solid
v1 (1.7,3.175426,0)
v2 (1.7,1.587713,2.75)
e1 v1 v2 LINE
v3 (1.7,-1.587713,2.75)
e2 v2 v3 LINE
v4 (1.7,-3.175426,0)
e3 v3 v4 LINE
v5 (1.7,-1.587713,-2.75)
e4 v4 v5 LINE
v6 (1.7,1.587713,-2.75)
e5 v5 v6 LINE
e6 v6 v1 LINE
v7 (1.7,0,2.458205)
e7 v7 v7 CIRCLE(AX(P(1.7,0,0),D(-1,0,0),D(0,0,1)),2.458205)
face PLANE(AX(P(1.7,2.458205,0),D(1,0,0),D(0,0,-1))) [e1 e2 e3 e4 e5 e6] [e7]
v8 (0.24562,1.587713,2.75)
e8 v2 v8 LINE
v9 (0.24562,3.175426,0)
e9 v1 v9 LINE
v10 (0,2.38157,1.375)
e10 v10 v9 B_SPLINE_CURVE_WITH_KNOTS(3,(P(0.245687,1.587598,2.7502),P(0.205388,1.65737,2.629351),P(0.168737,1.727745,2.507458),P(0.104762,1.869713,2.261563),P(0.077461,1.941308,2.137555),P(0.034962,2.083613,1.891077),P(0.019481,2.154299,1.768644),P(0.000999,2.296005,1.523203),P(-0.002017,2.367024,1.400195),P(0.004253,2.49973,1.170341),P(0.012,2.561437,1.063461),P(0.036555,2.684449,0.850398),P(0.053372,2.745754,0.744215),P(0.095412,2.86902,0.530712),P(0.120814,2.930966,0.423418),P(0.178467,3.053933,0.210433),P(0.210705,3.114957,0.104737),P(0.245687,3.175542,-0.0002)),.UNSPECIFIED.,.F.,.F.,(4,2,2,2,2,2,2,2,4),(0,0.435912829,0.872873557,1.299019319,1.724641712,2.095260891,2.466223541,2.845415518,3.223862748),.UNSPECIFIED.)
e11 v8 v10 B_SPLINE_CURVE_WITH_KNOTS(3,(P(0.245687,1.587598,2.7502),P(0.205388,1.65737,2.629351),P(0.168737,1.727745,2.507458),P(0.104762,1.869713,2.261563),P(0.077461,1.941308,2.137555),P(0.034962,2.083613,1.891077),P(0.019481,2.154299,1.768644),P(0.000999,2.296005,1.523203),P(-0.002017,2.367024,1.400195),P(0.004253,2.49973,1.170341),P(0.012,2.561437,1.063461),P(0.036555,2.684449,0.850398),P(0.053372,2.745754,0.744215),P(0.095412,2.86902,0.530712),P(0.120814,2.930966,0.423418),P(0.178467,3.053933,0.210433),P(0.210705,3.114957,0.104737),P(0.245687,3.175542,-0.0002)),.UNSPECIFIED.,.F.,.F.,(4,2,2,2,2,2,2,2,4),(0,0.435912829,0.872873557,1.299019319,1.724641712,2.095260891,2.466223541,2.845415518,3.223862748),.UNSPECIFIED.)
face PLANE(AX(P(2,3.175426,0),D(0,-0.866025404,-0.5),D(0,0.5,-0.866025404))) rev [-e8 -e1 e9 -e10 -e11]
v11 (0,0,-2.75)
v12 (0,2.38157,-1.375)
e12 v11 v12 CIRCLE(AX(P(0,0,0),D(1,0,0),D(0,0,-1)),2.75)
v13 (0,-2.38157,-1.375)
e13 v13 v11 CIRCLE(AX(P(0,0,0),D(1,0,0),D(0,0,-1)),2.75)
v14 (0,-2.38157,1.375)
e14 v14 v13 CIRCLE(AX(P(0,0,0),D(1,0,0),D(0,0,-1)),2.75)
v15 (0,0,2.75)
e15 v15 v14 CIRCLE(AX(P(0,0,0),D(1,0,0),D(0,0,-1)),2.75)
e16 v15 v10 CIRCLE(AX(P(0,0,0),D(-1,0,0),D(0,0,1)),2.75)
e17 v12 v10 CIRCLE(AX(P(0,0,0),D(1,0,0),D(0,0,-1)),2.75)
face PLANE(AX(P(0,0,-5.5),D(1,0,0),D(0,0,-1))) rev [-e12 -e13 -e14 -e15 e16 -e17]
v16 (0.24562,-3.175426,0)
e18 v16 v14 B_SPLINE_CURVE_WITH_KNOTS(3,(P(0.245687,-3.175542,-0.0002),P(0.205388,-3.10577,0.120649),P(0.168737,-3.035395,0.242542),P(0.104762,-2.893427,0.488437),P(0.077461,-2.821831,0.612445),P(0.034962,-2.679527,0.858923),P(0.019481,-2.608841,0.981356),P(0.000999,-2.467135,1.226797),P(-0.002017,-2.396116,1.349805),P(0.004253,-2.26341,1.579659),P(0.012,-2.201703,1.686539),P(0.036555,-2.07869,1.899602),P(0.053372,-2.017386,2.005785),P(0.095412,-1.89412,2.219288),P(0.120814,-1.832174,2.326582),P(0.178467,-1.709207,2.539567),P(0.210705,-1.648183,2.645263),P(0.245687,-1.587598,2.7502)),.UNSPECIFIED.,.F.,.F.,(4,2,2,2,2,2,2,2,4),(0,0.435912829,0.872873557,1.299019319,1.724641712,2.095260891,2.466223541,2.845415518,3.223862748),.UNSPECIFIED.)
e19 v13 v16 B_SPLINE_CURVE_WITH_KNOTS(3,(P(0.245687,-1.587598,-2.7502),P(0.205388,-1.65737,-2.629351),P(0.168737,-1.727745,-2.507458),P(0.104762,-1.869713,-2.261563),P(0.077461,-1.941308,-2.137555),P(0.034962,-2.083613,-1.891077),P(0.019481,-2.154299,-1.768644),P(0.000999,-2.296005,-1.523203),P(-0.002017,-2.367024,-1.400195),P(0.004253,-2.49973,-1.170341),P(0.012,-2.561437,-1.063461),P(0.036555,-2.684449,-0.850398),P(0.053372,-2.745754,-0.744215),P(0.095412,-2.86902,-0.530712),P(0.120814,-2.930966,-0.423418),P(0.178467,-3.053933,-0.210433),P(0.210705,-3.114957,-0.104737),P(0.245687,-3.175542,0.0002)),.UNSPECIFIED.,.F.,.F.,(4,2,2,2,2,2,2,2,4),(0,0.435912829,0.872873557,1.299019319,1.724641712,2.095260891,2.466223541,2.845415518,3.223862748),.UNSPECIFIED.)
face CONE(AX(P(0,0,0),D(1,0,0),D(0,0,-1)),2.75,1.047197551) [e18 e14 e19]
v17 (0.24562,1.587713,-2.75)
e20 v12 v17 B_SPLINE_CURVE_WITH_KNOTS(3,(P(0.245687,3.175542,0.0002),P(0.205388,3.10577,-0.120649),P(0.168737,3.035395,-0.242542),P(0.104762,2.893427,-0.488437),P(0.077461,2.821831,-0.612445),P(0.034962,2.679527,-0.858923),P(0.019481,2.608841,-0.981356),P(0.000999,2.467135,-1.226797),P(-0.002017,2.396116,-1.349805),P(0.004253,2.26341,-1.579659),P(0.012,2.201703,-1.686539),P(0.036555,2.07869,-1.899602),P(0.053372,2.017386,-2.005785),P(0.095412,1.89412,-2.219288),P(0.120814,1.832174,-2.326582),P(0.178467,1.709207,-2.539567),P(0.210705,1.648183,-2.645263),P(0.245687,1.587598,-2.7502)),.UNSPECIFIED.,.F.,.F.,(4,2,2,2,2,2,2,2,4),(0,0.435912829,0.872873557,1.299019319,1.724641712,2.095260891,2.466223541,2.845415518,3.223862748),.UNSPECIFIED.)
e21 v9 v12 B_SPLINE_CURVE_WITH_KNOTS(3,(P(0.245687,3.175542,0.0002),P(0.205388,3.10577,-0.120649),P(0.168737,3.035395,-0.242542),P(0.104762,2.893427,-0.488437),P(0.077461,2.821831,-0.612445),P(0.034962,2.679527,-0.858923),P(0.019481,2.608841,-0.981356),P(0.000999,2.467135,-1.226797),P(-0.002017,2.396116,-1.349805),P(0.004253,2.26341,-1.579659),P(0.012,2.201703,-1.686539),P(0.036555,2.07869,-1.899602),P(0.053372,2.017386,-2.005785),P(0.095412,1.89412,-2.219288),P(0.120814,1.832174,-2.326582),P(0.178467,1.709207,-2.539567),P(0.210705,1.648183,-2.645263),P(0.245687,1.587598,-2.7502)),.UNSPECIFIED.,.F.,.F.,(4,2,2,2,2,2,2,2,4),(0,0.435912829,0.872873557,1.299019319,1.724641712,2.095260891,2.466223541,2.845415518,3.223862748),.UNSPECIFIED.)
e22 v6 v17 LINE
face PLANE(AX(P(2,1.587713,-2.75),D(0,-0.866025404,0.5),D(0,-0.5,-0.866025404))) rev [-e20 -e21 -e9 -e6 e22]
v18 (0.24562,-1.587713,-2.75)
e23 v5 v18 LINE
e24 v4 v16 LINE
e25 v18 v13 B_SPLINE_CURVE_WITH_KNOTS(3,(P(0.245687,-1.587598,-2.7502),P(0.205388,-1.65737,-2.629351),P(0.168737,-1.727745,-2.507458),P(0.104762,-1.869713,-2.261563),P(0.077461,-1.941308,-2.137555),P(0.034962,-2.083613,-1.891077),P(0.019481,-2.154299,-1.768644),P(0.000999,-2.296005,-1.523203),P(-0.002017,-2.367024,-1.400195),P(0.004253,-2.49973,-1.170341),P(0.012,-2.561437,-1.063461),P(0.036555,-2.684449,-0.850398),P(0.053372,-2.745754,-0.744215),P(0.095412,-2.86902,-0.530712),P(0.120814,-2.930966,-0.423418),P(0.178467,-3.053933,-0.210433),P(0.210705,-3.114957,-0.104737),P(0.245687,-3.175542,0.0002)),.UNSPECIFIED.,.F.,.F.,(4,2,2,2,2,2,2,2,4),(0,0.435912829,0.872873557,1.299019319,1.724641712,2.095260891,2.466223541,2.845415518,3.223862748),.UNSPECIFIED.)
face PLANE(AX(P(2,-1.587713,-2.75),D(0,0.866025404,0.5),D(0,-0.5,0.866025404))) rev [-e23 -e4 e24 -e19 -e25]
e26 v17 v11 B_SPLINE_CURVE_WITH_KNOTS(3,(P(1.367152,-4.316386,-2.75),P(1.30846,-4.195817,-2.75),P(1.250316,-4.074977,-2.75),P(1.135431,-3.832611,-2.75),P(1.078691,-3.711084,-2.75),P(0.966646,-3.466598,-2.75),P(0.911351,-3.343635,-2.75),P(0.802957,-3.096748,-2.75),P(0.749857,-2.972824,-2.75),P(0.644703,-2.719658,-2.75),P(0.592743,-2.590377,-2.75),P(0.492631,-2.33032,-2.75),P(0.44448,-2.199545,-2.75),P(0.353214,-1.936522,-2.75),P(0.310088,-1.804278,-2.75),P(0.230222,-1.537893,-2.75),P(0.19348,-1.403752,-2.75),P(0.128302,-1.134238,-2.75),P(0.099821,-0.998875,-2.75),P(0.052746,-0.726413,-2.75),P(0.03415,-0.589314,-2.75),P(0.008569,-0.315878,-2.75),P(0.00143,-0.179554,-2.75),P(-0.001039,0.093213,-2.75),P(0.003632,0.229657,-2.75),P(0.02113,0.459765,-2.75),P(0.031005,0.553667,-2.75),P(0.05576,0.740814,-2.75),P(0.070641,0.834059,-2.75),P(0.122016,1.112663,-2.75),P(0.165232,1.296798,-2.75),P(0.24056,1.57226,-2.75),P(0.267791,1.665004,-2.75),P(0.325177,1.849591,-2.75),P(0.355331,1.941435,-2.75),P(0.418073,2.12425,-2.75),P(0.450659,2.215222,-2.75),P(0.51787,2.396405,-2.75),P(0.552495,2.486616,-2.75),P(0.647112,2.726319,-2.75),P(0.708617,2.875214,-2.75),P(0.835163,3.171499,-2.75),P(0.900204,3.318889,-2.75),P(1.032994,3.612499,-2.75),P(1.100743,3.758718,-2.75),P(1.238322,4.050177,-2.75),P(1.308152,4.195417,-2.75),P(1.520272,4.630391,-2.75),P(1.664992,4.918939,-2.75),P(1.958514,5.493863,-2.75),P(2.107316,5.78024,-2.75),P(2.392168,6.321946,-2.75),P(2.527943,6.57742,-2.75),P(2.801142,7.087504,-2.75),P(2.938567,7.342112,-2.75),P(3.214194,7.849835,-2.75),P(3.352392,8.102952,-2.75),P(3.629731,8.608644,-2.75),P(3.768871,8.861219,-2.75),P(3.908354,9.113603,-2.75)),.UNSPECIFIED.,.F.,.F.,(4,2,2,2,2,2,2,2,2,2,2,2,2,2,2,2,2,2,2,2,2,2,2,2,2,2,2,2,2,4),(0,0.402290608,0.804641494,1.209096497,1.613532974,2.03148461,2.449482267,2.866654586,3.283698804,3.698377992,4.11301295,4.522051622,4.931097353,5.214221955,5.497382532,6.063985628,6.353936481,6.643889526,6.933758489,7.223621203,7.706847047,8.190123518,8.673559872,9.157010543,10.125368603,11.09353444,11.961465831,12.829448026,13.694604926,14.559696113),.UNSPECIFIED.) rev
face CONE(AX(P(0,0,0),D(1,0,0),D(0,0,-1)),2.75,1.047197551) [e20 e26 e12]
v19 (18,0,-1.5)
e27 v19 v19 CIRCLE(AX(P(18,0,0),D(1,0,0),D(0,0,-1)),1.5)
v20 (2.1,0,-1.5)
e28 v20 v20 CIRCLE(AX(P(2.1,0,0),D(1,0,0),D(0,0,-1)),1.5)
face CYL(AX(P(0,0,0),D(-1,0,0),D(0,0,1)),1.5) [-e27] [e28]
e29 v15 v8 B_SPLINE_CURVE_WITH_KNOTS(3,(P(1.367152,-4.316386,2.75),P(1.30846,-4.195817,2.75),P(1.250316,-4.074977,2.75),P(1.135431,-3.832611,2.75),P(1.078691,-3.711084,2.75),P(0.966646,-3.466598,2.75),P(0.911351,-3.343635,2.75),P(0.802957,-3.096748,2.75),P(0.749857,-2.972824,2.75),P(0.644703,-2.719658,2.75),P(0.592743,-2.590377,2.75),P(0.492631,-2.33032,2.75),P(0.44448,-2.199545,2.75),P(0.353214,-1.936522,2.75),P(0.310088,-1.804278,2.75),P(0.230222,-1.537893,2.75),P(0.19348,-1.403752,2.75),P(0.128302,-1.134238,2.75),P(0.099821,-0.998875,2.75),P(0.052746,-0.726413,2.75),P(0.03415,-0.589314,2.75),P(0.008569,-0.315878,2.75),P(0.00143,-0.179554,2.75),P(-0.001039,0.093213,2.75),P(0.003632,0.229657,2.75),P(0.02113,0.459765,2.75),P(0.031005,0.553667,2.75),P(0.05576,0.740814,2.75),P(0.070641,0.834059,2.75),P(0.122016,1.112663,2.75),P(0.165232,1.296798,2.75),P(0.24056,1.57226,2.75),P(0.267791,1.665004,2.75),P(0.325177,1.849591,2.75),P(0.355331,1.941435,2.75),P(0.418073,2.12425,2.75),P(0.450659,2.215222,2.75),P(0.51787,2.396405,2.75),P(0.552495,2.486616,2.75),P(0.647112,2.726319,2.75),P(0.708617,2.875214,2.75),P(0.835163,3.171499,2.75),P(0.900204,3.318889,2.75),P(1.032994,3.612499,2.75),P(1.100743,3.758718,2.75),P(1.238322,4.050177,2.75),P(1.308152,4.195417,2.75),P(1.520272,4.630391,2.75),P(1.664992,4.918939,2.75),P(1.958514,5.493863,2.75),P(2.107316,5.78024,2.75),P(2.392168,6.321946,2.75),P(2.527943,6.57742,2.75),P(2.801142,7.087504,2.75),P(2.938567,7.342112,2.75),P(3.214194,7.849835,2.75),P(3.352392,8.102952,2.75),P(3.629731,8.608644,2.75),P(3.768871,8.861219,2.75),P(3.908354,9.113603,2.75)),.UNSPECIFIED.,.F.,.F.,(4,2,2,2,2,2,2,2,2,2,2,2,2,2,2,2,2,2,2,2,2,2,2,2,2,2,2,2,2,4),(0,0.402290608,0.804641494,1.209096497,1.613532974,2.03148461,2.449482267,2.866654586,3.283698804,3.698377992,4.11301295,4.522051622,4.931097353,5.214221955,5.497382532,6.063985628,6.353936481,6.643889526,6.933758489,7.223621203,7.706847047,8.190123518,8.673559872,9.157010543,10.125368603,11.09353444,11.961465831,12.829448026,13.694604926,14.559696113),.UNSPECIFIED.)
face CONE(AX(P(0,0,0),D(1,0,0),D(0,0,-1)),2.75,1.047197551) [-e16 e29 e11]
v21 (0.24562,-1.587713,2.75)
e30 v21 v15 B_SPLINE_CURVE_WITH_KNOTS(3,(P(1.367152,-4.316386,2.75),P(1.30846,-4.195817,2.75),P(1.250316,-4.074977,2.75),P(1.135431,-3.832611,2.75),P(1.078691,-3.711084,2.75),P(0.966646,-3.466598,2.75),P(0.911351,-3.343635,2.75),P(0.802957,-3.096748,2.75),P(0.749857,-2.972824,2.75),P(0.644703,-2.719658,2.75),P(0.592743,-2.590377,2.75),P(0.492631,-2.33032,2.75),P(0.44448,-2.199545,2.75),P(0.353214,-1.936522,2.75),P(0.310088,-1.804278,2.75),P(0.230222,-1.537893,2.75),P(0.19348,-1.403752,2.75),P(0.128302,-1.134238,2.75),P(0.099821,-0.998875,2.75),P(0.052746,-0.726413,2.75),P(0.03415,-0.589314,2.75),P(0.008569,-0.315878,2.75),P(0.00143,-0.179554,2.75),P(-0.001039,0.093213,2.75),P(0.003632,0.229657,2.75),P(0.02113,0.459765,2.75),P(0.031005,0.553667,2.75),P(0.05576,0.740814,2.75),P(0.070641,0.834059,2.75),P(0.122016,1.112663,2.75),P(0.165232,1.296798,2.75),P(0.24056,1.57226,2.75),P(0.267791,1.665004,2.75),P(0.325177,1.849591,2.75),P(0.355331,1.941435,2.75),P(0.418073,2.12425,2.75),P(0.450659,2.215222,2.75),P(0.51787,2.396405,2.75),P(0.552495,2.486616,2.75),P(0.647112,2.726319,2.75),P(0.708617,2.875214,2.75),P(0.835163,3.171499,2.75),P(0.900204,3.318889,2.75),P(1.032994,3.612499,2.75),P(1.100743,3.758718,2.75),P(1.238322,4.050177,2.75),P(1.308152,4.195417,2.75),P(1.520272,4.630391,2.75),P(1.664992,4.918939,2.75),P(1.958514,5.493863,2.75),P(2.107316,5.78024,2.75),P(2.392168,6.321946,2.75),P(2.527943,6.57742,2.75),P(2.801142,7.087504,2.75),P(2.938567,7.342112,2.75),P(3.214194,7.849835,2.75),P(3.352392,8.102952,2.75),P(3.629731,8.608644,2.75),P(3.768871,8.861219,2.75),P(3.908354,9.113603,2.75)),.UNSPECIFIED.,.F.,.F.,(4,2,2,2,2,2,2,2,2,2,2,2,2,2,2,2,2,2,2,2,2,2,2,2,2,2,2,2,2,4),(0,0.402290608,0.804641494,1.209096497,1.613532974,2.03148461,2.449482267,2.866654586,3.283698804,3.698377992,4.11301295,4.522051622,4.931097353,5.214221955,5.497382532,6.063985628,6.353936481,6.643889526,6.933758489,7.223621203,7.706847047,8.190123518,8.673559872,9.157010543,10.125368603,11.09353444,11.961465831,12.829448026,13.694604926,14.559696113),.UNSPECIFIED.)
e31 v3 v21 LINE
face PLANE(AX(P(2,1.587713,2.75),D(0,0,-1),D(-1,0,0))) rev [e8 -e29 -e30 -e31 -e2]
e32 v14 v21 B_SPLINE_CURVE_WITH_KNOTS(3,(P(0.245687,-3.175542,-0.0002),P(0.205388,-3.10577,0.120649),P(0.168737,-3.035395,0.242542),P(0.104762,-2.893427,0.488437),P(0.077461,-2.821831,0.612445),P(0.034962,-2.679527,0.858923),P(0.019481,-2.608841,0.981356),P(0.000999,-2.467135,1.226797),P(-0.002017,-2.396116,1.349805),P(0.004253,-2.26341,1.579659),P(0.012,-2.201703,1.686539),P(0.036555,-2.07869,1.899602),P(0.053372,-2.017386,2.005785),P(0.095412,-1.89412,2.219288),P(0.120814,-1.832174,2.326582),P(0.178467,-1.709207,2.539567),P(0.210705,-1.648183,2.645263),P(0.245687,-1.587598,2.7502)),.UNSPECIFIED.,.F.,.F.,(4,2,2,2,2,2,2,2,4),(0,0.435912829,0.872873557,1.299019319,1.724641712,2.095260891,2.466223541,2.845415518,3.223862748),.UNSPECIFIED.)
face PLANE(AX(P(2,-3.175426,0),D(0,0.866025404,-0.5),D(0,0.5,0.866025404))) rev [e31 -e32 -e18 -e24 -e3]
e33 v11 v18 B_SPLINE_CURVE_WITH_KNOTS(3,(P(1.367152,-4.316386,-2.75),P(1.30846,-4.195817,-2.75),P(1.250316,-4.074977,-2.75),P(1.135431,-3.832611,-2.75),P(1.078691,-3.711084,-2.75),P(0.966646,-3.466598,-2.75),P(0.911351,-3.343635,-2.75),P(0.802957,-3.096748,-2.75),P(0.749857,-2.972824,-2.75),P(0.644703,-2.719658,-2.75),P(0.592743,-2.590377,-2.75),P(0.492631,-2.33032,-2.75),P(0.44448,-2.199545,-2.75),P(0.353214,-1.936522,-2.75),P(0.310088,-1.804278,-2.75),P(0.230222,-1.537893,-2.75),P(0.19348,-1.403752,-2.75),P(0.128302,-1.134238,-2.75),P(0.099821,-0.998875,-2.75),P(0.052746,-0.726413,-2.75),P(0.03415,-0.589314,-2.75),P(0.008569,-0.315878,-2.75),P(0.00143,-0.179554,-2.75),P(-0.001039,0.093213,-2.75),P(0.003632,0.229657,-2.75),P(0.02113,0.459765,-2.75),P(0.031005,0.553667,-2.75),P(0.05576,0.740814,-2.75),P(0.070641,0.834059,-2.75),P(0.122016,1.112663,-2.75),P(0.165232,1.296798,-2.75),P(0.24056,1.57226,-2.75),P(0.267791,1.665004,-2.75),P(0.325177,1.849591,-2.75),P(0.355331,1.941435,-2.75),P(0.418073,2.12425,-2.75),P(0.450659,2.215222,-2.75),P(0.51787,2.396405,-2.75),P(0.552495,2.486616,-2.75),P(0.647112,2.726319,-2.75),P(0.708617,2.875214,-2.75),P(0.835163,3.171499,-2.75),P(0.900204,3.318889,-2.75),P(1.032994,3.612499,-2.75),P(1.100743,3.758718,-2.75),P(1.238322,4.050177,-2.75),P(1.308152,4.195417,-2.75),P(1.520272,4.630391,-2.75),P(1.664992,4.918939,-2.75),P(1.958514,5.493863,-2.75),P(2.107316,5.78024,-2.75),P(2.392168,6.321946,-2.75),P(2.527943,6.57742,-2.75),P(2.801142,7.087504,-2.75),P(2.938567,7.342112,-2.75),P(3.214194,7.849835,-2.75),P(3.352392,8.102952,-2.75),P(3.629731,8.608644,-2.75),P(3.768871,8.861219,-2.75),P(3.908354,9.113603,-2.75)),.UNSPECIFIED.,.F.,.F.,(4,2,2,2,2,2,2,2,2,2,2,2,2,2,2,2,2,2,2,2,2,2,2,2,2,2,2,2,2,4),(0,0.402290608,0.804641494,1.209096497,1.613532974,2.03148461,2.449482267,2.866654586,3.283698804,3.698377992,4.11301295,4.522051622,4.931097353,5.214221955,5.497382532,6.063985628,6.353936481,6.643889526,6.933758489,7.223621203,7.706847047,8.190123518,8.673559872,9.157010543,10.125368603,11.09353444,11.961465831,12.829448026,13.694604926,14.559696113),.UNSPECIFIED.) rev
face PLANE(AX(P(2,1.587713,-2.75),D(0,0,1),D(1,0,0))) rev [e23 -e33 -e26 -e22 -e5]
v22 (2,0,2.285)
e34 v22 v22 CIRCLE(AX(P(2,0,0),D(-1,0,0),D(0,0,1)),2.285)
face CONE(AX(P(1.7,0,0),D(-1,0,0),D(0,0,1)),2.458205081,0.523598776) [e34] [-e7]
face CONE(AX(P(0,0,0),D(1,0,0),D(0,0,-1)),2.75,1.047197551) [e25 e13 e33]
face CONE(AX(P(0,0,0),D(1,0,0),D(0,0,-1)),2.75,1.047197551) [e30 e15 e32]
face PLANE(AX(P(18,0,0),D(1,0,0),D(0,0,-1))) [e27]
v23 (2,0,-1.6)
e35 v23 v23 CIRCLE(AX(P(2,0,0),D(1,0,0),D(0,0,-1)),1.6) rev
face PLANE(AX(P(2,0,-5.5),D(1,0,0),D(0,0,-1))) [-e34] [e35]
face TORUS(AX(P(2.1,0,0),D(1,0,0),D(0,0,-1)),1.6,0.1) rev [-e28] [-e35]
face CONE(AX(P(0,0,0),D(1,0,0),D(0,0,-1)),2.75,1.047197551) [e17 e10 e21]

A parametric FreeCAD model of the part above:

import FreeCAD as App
import Part
import Sketcher

V = App.Vector
Q = App.Units.Quantity


def edges_at(feature, points):
    """Names of the edges that pass closest to the given points."""
    edges = feature.Shape.Edges
    near = lambda p: min(range(len(edges)), key=lambda i: edges[i].distToShape(Part.Vertex(*p))[0])
    return sorted({f"Edge{near(p) + 1}" for p in points})


def add_polygon(sketch, points):
    """Adds a closed chain of lines whose ends are joined by coincident constraints."""
    first, n = sketch.GeometryCount, len(points)
    for a, b in zip(points, points[1:] + points[:1]):
        sketch.addGeometry(Part.LineSegment(App.Vector(*a, 0), App.Vector(*b, 0)), False)
    for i in range(n):
        sketch.addConstraint(Sketcher.Constraint("Coincident", first + i, 2, first + (i + 1) % n, 1))

doc = App.newDocument("Part")
body = doc.addObject("PartDesign::Body", "Body")

# Sketch on YZ plane
sketch1 = doc.addObject("Sketcher::SketchObject", "Sketch")
body.addObject(sketch1)
sketch1.AttachmentSupport = (doc.YZ_Plane, [""])
sketch1.MapMode = "FlatFace"
add_polygon(sketch1, [(-1.6, -2.8), (1.6, -2.8), (3.2, 0), (1.6, 2.8), (-1.6, 2.8), (-3.2, 0)])  # lines 0-5
sketch1.addConstraint([
    Sketcher.Constraint("Horizontal", 0),
    Sketcher.Constraint("Horizontal", 3),
    Sketcher.Constraint("Symmetric", 0, 2, 3, 2, -1, 1),
    Sketcher.Constraint("Symmetric", 1, 2, 4, 2, -1, 1),
    Sketcher.Constraint("PointOnObject", 1, 2, -1),
    Sketcher.Constraint("Parallel", 2, 5),
    Sketcher.Constraint("Vertical", 0, 2, 2, 2),
    Sketcher.Constraint("Angle", 1, Q("60 deg")),
    Sketcher.Constraint("DistanceY", 0, 2, 2, 2, 5.5),
    Sketcher.Constraint("DistanceX", 0, 1, 0, 2, 3.175426),
])
pad1 = doc.addObject("PartDesign::Pad", "Pad")
body.addObject(pad1)
pad1.Profile = sketch1
pad1.Length = 2

# Sketch on XY plane
sketch2 = doc.addObject("Sketcher::SketchObject", "Sketch001")
body.addObject(sketch2)
sketch2.AttachmentSupport = (doc.XY_Plane, [""])
sketch2.MapMode = "FlatFace"
add_polygon(sketch2, [(0, 0), (27, 0), (27, 1.5), (0, 1.5)])  # lines 0-3
sketch2.addConstraint([
    Sketcher.Constraint("Horizontal", 0),
    Sketcher.Constraint("Vertical", 1),
    Sketcher.Constraint("Horizontal", 2),
    Sketcher.Constraint("Vertical", 3),
    Sketcher.Constraint("Coincident", 3, 2, -1, 1),
    Sketcher.Constraint("DistanceX", 0, 1, 0, 2, 27.0),
    Sketcher.Constraint("DistanceY", 1, 1, 1, 2, 1.5),
])
revolution = doc.addObject("PartDesign::Revolution", "Revolution")
body.addObject(revolution)
revolution.Profile = sketch2
revolution.ReferenceAxis = (sketch2, ["H_Axis"])
revolution.Angle = 360

# Sketch on XY plane
sketch3 = doc.addObject("Sketcher::SketchObject", "Sketch002")
body.addObject(sketch3)
sketch3.AttachmentSupport = (doc.XY_Plane, [""])
sketch3.MapMode = "FlatFace"
add_polygon(sketch3, [(0, 3), (3, 8), (3, 13), (-10, 13), (-10, 3)])  # lines 0-4
sketch3.addConstraint([
    Sketcher.Constraint("Vertical", 1),
    Sketcher.Constraint("Horizontal", 2),
    Sketcher.Constraint("Vertical", 3),
    Sketcher.Constraint("Horizontal", 4),
    Sketcher.Constraint("PointOnObject", 4, 2, -2),
    Sketcher.Constraint("DistanceX", 4, 1, 4, 2, 10.0),
    Sketcher.Constraint("DistanceY", 1, 1, 1, 2, 5.0),
    Sketcher.Constraint("Angle", 0, Q("60 deg")),
    Sketcher.Constraint("DistanceY", -1, 1, 3, 2, 2.75),
    Sketcher.Constraint("DistanceX", 2, 2, 2, 1, 13.132371),
])
groove = doc.addObject("PartDesign::Groove", "Groove")
body.addObject(groove)
groove.Profile = sketch3
groove.ReferenceAxis = (sketch3, ["H_Axis"])
groove.Angle = 360

# Sketch on XY plane
sketch4 = doc.addObject("Sketcher::SketchObject", "Sketch003")
body.addObject(sketch4)
sketch4.AttachmentSupport = (doc.XY_Plane, [""])
sketch4.MapMode = "FlatFace"
add_polygon(sketch4, [(1.7, 2.46), (2, 2.29), (2, 3.18), (1.7, 3.18)])  # lines 0-3
sketch4.addConstraint([
    Sketcher.Constraint("Vertical", 1),
    Sketcher.Constraint("Horizontal", 2),
    Sketcher.Constraint("Vertical", 3),
    Sketcher.Constraint("Angle", 0, Q("-30 deg")),
    Sketcher.Constraint("DistanceX", 2, 2, 2, 1, 0.3),
    Sketcher.Constraint("DistanceX", -1, 1, 0, 2, 2.0),
    Sketcher.Constraint("DistanceY", -1, 1, 0, 2, 2.285),
    Sketcher.Constraint("DistanceY", 3, 2, 3, 1, 0.717221),
])
groove2 = doc.addObject("PartDesign::Groove", "Groove001")
body.addObject(groove2)
groove2.Profile = sketch4
groove2.ReferenceAxis = (sketch4, ["H_Axis"])
groove2.Angle = 360
doc.recompute()

fillet = doc.addObject("PartDesign::Fillet", "Fillet")
body.addObject(fillet)
fillet.Base = (groove2, edges_at(groove2, [(2, 0, -1.5)]))
fillet.Radius = 0.1

# Sketch on XY plane
sketch5 = doc.addObject("Sketcher::SketchObject", "Sketch004")
body.addObject(sketch5)
sketch5.AttachmentSupport = (doc.XY_Plane, [""])
sketch5.MapMode = "FlatFace"
add_polygon(sketch5, [(27.2, 1.5), (26.8, 1.5), (27, 1.1)])  # lines 0-2
sketch5.addConstraint([
    Sketcher.Constraint("Horizontal", 0),
    Sketcher.Constraint("Equal", 1, 2),
    Sketcher.Constraint("Angle", 1, Q("-60 deg")),
    Sketcher.Constraint("DistanceX", 0, 2, 0, 1, 0.5),
    Sketcher.Constraint("DistanceX", -1, 1, 1, 2, 27.0),
    Sketcher.Constraint("DistanceY", -1, 1, 0, 2, 1.5),
])
groove3 = doc.addObject("PartDesign::Groove", "Groove002")
body.addObject(groove3)
groove3.Profile = sketch5
groove3.ReferenceAxis = (sketch5, ["H_Axis"])
groove3.Angle = 360

# Sketch on YZ plane
sketch6 = doc.addObject("Sketcher::SketchObject", "Sketch005")
body.addObject(sketch6)
sketch6.AttachmentSupport = (doc.YZ_Plane, [""])
sketch6.MapMode = "FlatFace"
sketch6.AttachmentOffset = App.Placement(V(0, 0, 27), App.Rotation())
sketch6.addGeometry(Part.Circle(V(0, 0, 0), V(0, 0, 1), 3.3), False)
sketch6.addConstraint([
    Sketcher.Constraint("Coincident", 0, 3, -1, 1),
    Sketcher.Constraint("Diameter", 0, 6.69737),
])
pocket1 = doc.addObject("PartDesign::Pocket", "Pocket")
body.addObject(pocket1)
pocket1.Profile = sketch6
pocket1.Length = 9

doc.recompute()
